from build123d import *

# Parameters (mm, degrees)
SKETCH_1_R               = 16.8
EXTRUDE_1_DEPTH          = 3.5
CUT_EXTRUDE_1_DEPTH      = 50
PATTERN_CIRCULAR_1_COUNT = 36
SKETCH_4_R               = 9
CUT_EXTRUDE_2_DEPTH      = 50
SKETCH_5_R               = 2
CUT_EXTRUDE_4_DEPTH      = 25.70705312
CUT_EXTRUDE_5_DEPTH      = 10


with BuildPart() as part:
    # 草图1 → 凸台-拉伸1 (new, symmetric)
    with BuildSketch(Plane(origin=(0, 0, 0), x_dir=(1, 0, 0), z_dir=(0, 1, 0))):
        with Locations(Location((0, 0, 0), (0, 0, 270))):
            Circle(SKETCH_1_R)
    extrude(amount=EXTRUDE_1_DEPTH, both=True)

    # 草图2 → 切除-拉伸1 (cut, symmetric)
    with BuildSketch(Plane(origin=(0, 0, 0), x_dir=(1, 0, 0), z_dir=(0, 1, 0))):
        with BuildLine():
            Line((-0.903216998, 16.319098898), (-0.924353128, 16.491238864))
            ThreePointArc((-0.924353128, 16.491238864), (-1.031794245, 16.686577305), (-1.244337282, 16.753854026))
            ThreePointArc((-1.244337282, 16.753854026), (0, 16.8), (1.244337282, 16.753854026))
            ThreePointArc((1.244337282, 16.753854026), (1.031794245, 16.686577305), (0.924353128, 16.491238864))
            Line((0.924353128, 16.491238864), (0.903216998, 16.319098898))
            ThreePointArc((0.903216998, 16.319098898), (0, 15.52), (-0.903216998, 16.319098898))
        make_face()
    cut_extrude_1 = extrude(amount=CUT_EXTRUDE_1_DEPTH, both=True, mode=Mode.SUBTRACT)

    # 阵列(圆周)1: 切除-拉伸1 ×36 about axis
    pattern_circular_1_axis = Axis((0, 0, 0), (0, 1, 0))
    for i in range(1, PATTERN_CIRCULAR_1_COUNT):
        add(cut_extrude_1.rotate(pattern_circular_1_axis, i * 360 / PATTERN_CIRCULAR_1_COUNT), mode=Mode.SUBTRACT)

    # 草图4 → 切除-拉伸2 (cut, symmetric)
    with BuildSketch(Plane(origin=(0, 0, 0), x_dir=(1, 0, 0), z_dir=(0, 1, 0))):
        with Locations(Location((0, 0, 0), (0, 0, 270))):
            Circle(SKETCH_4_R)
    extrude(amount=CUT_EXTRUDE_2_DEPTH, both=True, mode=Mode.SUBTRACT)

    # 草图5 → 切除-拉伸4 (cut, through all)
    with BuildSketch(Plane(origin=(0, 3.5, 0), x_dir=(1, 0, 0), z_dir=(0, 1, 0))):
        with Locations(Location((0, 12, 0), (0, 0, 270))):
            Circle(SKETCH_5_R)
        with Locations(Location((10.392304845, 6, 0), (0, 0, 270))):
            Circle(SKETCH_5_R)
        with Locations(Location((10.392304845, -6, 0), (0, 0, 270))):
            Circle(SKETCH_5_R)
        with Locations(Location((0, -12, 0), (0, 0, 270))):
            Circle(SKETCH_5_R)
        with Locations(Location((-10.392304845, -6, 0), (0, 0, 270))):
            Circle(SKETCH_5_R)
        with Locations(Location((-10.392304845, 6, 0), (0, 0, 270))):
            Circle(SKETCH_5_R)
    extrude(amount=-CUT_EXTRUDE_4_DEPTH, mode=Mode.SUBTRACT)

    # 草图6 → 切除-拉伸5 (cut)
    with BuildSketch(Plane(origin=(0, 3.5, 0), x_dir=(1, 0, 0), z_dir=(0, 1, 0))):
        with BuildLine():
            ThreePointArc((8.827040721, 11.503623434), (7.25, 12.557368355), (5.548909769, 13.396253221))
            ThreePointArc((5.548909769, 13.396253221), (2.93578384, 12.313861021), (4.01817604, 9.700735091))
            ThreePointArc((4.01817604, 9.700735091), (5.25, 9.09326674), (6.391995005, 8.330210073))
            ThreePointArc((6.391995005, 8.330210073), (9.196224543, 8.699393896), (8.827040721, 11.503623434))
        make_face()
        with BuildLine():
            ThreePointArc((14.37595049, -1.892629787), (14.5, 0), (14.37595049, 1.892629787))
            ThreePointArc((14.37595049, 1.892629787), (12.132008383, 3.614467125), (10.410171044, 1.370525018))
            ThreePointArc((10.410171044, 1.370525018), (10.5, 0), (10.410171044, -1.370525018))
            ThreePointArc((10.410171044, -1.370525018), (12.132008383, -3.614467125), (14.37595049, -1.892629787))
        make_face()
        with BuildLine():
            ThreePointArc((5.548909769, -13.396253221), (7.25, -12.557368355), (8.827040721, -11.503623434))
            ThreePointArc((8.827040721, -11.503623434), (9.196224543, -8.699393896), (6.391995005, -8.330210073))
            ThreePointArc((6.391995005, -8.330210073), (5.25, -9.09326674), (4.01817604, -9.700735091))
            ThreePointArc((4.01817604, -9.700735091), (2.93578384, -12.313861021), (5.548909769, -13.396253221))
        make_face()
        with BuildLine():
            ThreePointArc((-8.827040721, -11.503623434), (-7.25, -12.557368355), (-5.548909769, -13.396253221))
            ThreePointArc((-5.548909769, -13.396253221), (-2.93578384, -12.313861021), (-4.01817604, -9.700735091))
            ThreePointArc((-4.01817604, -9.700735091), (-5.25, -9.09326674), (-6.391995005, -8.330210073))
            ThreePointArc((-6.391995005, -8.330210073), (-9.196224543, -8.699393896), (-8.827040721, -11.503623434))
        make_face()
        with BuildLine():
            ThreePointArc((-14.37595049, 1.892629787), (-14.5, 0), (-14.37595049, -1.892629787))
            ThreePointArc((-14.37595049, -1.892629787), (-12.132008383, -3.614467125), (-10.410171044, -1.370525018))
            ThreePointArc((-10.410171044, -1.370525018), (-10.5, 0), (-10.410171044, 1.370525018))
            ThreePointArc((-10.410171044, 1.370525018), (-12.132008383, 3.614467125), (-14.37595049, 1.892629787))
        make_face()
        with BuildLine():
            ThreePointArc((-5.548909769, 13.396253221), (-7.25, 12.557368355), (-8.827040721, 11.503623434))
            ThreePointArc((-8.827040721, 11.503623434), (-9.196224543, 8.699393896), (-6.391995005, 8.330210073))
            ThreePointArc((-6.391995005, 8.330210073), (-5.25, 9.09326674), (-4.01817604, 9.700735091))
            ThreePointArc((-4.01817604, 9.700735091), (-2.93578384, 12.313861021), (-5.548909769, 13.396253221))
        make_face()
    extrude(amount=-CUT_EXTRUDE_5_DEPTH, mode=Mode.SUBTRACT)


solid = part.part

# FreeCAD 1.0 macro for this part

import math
import FreeCAD as App
import Part
import Sketcher
from FreeCAD import Vector
Q = App.Units.Quantity

doc = App.newDocument("Part")
body = doc.addObject("PartDesign::Body", "Body")

# Sketch on XZ plane
sketch1 = doc.addObject("Sketcher::SketchObject", "Sketch")
body.addObject(sketch1)
sketch1.AttachmentSupport = (doc.XZ_Plane, [""])
sketch1.MapMode = "FlatFace"
sketch1.addGeometry(Part.Circle(Vector(0, 0, 0), Vector(0, 0, 1), 17), False)
sketch1.addConstraint([
    Sketcher.Constraint("Coincident", 0, 3, -1, 1),
    Sketcher.Constraint("Diameter", 0, 33.6),
])
pad1 = doc.addObject("PartDesign::Pad", "Pad")
body.addObject(pad1)
pad1.Profile = sketch1
pad1.Length = 7
pad1.Midplane = True

# Sketch on XZ plane
sketch2 = doc.addObject("Sketcher::SketchObject", "Sketch001")
body.addObject(sketch2)
sketch2.AttachmentSupport = (doc.XZ_Plane, [""])
sketch2.MapMode = "FlatFace"
sketch2.addGeometry([
    Part.LineSegment(Vector(-0.92, -16.49, 0), Vector(-0.9, -16.32, 0)),  # 0
    Part.ArcOfCircle(Part.Circle(Vector(0, -16.43, 0), Vector(0, 0, 1), 0.91), math.radians(7), math.radians(173)),  # 1
    Part.LineSegment(Vector(0.9, -16.32, 0), Vector(0.92, -16.49, 0)),  # 2
    Part.ArcOfCircle(Part.Circle(Vector(1.22, -16.45, 0), Vector(0, 0, 1), 0.3), math.radians(-173), math.radians(-86)),  # 3
    Part.ArcOfCircle(Part.Circle(Vector(0, 0, 0), Vector(0, 0, 1), 16.8), math.radians(-94.25), math.radians(-85.75)),  # 4
    Part.ArcOfCircle(Part.Circle(Vector(-1.22, -16.45, 0), Vector(0, 0, 1), 0.3), math.radians(-94), math.radians(-7)),  # 5
], False)
sketch2.addConstraint([
    Sketcher.Constraint("Tangent", 0, 2, 1, 2),
    Sketcher.Constraint("Tangent", 1, 1, 2, 1),
    Sketcher.Constraint("Tangent", 2, 2, 3, 1),
    Sketcher.Constraint("Tangent", 3, 2, 4, 2),
    Sketcher.Constraint("Tangent", 4, 1, 5, 1),
    Sketcher.Constraint("Tangent", 5, 2, 0, 1),
    Sketcher.Constraint("Coincident", 4, 3, -1, 1),
    Sketcher.Constraint("Equal", 3, 5),
    Sketcher.Constraint("Symmetric", 0, 2, 1, 1, -2),
    Sketcher.Constraint("Radius", 3, 0.3),
    Sketcher.Constraint("Radius", 4, 16.8),
    Sketcher.Constraint("Angle", 0, Q("83 deg")),
    Sketcher.Constraint("Radius", 1, 0.91),
    Sketcher.Constraint("DistanceY", 1, 3, -1, 1, 16.43),
])
pocket1 = doc.addObject("PartDesign::Pocket", "Pocket")
body.addObject(pocket1)
pocket1.Profile = sketch2
pocket1.Length = 100
pocket1.Midplane = True
doc.recompute()

polarpattern = doc.addObject("PartDesign::PolarPattern", "PolarPattern")
body.addObject(polarpattern)
polarpattern.Originals = [pocket1]
polarpattern.Axis = (doc.Y_Axis, [""])
polarpattern.Angle = 360
polarpattern.Occurrences = 36
body.Tip = polarpattern

# Sketch on XZ plane
sketch3 = doc.addObject("Sketcher::SketchObject", "Sketch002")
body.addObject(sketch3)
sketch3.AttachmentSupport = (doc.XZ_Plane, [""])
sketch3.MapMode = "FlatFace"
sketch3.addGeometry(Part.Circle(Vector(0, 0, 0), Vector(0, 0, 1), 9), False)
sketch3.addConstraint([
    Sketcher.Constraint("Coincident", 0, 3, -1, 1),
    Sketcher.Constraint("Diameter", 0, 18.0),
])
pocket2 = doc.addObject("PartDesign::Pocket", "Pocket001")
body.addObject(pocket2)
pocket2.Profile = sketch3
pocket2.Length = 100
pocket2.Midplane = True

# Sketch on XZ plane
sketch4 = doc.addObject("Sketcher::SketchObject", "Sketch003")
body.addObject(sketch4)
sketch4.AttachmentSupport = (doc.XZ_Plane, [""])
sketch4.MapMode = "FlatFace"
sketch4.AttachmentOffset = App.Placement(Vector(0, 0, -3.5), App.Rotation())
sketch4.addGeometry([
    Part.Circle(Vector(0, -12, 0), Vector(0, 0, 1), 2),  # 0
    Part.Circle(Vector(10.4, -6, 0), Vector(0, 0, 1), 2),  # 1
    Part.Circle(Vector(10.4, 6, 0), Vector(0, 0, 1), 2),  # 2
    Part.Circle(Vector(0, 12, 0), Vector(0, 0, 1), 2),  # 3
    Part.Circle(Vector(-10.4, 6, 0), Vector(0, 0, 1), 2),  # 4
    Part.Circle(Vector(-10.4, -6, 0), Vector(0, 0, 1), 2),  # 5
], False)
sketch4.addConstraint([
    Sketcher.Constraint("Equal", 0, 1),
    Sketcher.Constraint("Equal", 1, 2),
    Sketcher.Constraint("Equal", 2, 3),
    Sketcher.Constraint("Equal", 3, 4),
    Sketcher.Constraint("Equal", 4, 5),
    Sketcher.Constraint("Symmetric", 0, 3, 3, 3, -1, 1),
    Sketcher.Constraint("Symmetric", 1, 3, 4, 3, -1, 1),
    Sketcher.Constraint("Symmetric", 2, 3, 5, 3, -1, 1),
    Sketcher.Constraint("Symmetric", 2, 3, 4, 3, -2),
    Sketcher.Constraint("PointOnObject", 0, 3, -2),
    Sketcher.Constraint("Diameter", 0, 4.0),
    Sketcher.Constraint("DistanceY", 0, 3, -1, 1, 12.0),
    Sketcher.Constraint("DistanceY", 1, 3, -1, 1, 6.0),
    Sketcher.Constraint("DistanceX", 4, 3, 2, 3, 20.78461),
])
pocket3 = doc.addObject("PartDesign::Pocket", "Pocket002")
body.addObject(pocket3)
pocket3.Profile = sketch4
pocket3.Type = "ThroughAll"
pocket3.Reversed = True

# Sketch on XZ plane
sketch5 = doc.addObject("Sketcher::SketchObject", "Sketch004")
body.addObject(sketch5)
sketch5.AttachmentSupport = (doc.XZ_Plane, [""])
sketch5.MapMode = "FlatFace"
sketch5.AttachmentOffset = App.Placement(Vector(0, 0, -3.5), App.Rotation())
sketch5.addGeometry([
    Part.ArcOfCircle(Part.Circle(Vector(0, 0, 0), Vector(0, 0, 1), 14.5), math.radians(-67.5), math.radians(-52.5)),  # 0
    Part.ArcOfCircle(Part.Circle(Vector(4.8, -11.5, 0), Vector(0, 0, 1), 2), math.radians(113), math.radians(292)),  # 1
    Part.ArcOfCircle(Part.Circle(Vector(0, 0, 0), Vector(0, 0, 1), 10.5), math.radians(-67.5), math.radians(-52.5)),  # 2
    Part.ArcOfCircle(Part.Circle(Vector(7.6, -9.9, 0), Vector(0, 0, 1), 2), math.radians(-52), math.radians(127)),  # 3
    Part.ArcOfCircle(Part.Circle(Vector(0, 0, 0), Vector(0, 0, 1), 14.5), math.radians(-7.5), math.radians(7.5)),  # 4
    Part.ArcOfCircle(Part.Circle(Vector(12.4, -1.6, 0), Vector(0, 0, 1), 2), math.radians(173), math.radians(352)),  # 5
    Part.ArcOfCircle(Part.Circle(Vector(0, 0, 0), Vector(0, 0, 1), 10.5), math.radians(-7.5), math.radians(7.5)),  # 6
    Part.ArcOfCircle(Part.Circle(Vector(12.4, 1.6, 0), Vector(0, 0, 1), 2), math.radians(8), math.radians(187)),  # 7
    Part.ArcOfCircle(Part.Circle(Vector(0, 0, 0), Vector(0, 0, 1), 14.5), math.radians(52.5), math.radians(67.5)),  # 8
    Part.ArcOfCircle(Part.Circle(Vector(7.6, 9.9, 0), Vector(0, 0, 1), 2), math.radians(-127), math.radians(52)),  # 9
    Part.ArcOfCircle(Part.Circle(Vector(0, 0, 0), Vector(0, 0, 1), 10.5), math.radians(52.5), math.radians(67.5)),  # 10
    Part.ArcOfCircle(Part.Circle(Vector(4.8, 11.5, 0), Vector(0, 0, 1), 2), math.radians(68), math.radians(247)),  # 11
    Part.ArcOfCircle(Part.Circle(Vector(0, 0, 0), Vector(0, 0, 1), 14.5), math.radians(112.5), math.radians(127.5)),  # 12
    Part.ArcOfCircle(Part.Circle(Vector(-4.8, 11.5, 0), Vector(0, 0, 1), 2), math.radians(-67), math.radians(112)),  # 13
    Part.ArcOfCircle(Part.Circle(Vector(0, 0, 0), Vector(0, 0, 1), 10.5), math.radians(112.5), math.radians(127.5)),  # 14
    Part.ArcOfCircle(Part.Circle(Vector(-7.6, 9.9, 0), Vector(0, 0, 1), 2), math.radians(128), math.radians(307)),  # 15
    Part.ArcOfCircle(Part.Circle(Vector(0, 0, 0), Vector(0, 0, 1), 14.5), math.radians(172.5), math.radians(187.5)),  # 16
    Part.ArcOfCircle(Part.Circle(Vector(-12.4, 1.6, 0), Vector(0, 0, 1), 2), math.radians(-7), math.radians(172)),  # 17
    Part.ArcOfCircle(Part.Circle(Vector(0, 0, 0), Vector(0, 0, 1), 10.5), math.radians(172.5), math.radians(187.5)),  # 18
    Part.ArcOfCircle(Part.Circle(Vector(-12.4, -1.6, 0), Vector(0, 0, 1), 2), math.radians(-172), math.radians(7)),  # 19
    Part.ArcOfCircle(Part.Circle(Vector(0, 0, 0), Vector(0, 0, 1), 14.5), math.radians(-127.5), math.radians(-112.5)),  # 20
    Part.ArcOfCircle(Part.Circle(Vector(-7.6, -9.9, 0), Vector(0, 0, 1), 2), math.radians(53), math.radians(232)),  # 21
    Part.ArcOfCircle(Part.Circle(Vector(0, 0, 0), Vector(0, 0, 1), 10.5), math.radians(-127.5), math.radians(-112.5)),  # 22
    Part.ArcOfCircle(Part.Circle(Vector(-4.8, -11.5, 0), Vector(0, 0, 1), 2), math.radians(-112), math.radians(67)),  # 23
], False)
sketch5.addConstraint([
    Sketcher.Constraint("Tangent", 0, 1, 1, 2),
    Sketcher.Constraint("Tangent", 1, 1, 2, 1),
    Sketcher.Constraint("Tangent", 2, 2, 3, 2),
    Sketcher.Constraint("Tangent", 3, 1, 0, 2),
    Sketcher.Constraint("Tangent", 4, 1, 5, 2),
    Sketcher.Constraint("Tangent", 5, 1, 6, 1),
    Sketcher.Constraint("Tangent", 6, 2, 7, 2),
    Sketcher.Constraint("Tangent", 7, 1, 4, 2),
    Sketcher.Constraint("Tangent", 8, 1, 9, 2),
    Sketcher.Constraint("Tangent", 9, 1, 10, 1),
    Sketcher.Constraint("Tangent", 10, 2, 11, 2),
    Sketcher.Constraint("Tangent", 11, 1, 8, 2),
    Sketcher.Constraint("Tangent", 12, 1, 13, 2),
    Sketcher.Constraint("Tangent", 13, 1, 14, 1),
    Sketcher.Constraint("Tangent", 14, 2, 15, 2),
    Sketcher.Constraint("Tangent", 15, 1, 12, 2),
    Sketcher.Constraint("Tangent", 16, 1, 17, 2),
    Sketcher.Constraint("Tangent", 17, 1, 18, 1),
    Sketcher.Constraint("Tangent", 18, 2, 19, 2),
    Sketcher.Constraint("Tangent", 19, 1, 16, 2),
    Sketcher.Constraint("Tangent", 20, 1, 21, 2),
    Sketcher.Constraint("Tangent", 21, 1, 22, 1),
    Sketcher.Constraint("Tangent", 22, 2, 23, 2),
    Sketcher.Constraint("Tangent", 23, 1, 20, 2),
    Sketcher.Constraint("Coincident", 0, 3, -1, 1),
    Sketcher.Constraint("Coincident", 2, 3, -1, 1),
    Sketcher.Constraint("Coincident", 4, 3, -1, 1),
    Sketcher.Constraint("Coincident", 6, 3, -1, 1),
    Sketcher.Constraint("Coincident", 8, 3, -1, 1),
    Sketcher.Constraint("Coincident", 10, 3, -1, 1),
    Sketcher.Constraint("Coincident", 12, 3, -1, 1),
    Sketcher.Constraint("Coincident", 14, 3, -1, 1),
    Sketcher.Constraint("Coincident", 16, 3, -1, 1),
    Sketcher.Constraint("Coincident", 18, 3, -1, 1),
    Sketcher.Constraint("Coincident", 20, 3, -1, 1),
    Sketcher.Constraint("Coincident", 22, 3, -1, 1),
    Sketcher.Constraint("Equal", 0, 4),
    Sketcher.Constraint("Equal", 3, 5),
    Sketcher.Constraint("Equal", 4, 8),
    Sketcher.Constraint("Equal", 7, 9),
    Sketcher.Constraint("Equal", 8, 12),
    Sketcher.Constraint("Equal", 11, 13),
    Sketcher.Constraint("Equal", 12, 16),
    Sketcher.Constraint("Equal", 15, 17),
    Sketcher.Constraint("Equal", 16, 20),
    Sketcher.Constraint("Equal", 19, 21),
    Sketcher.Constraint("Horizontal", 11, 3, 13, 3),
    Sketcher.Constraint("Horizontal", 9, 3, 15, 3),
    Sketcher.Constraint("Horizontal", 7, 3, 17, 3),
    Sketcher.Constraint("Horizontal", 5, 3, 19, 3),
    Sketcher.Constraint("Horizontal", 3, 3, 21, 3),
    Sketcher.Constraint("Horizontal", 1, 3, 23, 3),
    Sketcher.Constraint("Vertical", 5, 3, 7, 3),
    Sketcher.Constraint("Vertical", 3, 3, 9, 3),
    Sketcher.Constraint("Vertical", 1, 3, 11, 3),
    Sketcher.Constraint("Radius", 1, 2.0),
    Sketcher.Constraint("Radius", 0, 14.5),
    Sketcher.Constraint("DistanceY", 6, 2, 8, 1, 10.133098),
    Sketcher.Constraint("DistanceX", -1, 1, 5, 3, 12.393061),
    Sketcher.Constraint("DistanceX", -1, 1, 0, 1, 5.54891),
])
pocket4 = doc.addObject("PartDesign::Pocket", "Pocket003")
body.addObject(pocket4)
pocket4.Profile = sketch5
pocket4.Length = 10
pocket4.Reversed = True

doc.recompute()
